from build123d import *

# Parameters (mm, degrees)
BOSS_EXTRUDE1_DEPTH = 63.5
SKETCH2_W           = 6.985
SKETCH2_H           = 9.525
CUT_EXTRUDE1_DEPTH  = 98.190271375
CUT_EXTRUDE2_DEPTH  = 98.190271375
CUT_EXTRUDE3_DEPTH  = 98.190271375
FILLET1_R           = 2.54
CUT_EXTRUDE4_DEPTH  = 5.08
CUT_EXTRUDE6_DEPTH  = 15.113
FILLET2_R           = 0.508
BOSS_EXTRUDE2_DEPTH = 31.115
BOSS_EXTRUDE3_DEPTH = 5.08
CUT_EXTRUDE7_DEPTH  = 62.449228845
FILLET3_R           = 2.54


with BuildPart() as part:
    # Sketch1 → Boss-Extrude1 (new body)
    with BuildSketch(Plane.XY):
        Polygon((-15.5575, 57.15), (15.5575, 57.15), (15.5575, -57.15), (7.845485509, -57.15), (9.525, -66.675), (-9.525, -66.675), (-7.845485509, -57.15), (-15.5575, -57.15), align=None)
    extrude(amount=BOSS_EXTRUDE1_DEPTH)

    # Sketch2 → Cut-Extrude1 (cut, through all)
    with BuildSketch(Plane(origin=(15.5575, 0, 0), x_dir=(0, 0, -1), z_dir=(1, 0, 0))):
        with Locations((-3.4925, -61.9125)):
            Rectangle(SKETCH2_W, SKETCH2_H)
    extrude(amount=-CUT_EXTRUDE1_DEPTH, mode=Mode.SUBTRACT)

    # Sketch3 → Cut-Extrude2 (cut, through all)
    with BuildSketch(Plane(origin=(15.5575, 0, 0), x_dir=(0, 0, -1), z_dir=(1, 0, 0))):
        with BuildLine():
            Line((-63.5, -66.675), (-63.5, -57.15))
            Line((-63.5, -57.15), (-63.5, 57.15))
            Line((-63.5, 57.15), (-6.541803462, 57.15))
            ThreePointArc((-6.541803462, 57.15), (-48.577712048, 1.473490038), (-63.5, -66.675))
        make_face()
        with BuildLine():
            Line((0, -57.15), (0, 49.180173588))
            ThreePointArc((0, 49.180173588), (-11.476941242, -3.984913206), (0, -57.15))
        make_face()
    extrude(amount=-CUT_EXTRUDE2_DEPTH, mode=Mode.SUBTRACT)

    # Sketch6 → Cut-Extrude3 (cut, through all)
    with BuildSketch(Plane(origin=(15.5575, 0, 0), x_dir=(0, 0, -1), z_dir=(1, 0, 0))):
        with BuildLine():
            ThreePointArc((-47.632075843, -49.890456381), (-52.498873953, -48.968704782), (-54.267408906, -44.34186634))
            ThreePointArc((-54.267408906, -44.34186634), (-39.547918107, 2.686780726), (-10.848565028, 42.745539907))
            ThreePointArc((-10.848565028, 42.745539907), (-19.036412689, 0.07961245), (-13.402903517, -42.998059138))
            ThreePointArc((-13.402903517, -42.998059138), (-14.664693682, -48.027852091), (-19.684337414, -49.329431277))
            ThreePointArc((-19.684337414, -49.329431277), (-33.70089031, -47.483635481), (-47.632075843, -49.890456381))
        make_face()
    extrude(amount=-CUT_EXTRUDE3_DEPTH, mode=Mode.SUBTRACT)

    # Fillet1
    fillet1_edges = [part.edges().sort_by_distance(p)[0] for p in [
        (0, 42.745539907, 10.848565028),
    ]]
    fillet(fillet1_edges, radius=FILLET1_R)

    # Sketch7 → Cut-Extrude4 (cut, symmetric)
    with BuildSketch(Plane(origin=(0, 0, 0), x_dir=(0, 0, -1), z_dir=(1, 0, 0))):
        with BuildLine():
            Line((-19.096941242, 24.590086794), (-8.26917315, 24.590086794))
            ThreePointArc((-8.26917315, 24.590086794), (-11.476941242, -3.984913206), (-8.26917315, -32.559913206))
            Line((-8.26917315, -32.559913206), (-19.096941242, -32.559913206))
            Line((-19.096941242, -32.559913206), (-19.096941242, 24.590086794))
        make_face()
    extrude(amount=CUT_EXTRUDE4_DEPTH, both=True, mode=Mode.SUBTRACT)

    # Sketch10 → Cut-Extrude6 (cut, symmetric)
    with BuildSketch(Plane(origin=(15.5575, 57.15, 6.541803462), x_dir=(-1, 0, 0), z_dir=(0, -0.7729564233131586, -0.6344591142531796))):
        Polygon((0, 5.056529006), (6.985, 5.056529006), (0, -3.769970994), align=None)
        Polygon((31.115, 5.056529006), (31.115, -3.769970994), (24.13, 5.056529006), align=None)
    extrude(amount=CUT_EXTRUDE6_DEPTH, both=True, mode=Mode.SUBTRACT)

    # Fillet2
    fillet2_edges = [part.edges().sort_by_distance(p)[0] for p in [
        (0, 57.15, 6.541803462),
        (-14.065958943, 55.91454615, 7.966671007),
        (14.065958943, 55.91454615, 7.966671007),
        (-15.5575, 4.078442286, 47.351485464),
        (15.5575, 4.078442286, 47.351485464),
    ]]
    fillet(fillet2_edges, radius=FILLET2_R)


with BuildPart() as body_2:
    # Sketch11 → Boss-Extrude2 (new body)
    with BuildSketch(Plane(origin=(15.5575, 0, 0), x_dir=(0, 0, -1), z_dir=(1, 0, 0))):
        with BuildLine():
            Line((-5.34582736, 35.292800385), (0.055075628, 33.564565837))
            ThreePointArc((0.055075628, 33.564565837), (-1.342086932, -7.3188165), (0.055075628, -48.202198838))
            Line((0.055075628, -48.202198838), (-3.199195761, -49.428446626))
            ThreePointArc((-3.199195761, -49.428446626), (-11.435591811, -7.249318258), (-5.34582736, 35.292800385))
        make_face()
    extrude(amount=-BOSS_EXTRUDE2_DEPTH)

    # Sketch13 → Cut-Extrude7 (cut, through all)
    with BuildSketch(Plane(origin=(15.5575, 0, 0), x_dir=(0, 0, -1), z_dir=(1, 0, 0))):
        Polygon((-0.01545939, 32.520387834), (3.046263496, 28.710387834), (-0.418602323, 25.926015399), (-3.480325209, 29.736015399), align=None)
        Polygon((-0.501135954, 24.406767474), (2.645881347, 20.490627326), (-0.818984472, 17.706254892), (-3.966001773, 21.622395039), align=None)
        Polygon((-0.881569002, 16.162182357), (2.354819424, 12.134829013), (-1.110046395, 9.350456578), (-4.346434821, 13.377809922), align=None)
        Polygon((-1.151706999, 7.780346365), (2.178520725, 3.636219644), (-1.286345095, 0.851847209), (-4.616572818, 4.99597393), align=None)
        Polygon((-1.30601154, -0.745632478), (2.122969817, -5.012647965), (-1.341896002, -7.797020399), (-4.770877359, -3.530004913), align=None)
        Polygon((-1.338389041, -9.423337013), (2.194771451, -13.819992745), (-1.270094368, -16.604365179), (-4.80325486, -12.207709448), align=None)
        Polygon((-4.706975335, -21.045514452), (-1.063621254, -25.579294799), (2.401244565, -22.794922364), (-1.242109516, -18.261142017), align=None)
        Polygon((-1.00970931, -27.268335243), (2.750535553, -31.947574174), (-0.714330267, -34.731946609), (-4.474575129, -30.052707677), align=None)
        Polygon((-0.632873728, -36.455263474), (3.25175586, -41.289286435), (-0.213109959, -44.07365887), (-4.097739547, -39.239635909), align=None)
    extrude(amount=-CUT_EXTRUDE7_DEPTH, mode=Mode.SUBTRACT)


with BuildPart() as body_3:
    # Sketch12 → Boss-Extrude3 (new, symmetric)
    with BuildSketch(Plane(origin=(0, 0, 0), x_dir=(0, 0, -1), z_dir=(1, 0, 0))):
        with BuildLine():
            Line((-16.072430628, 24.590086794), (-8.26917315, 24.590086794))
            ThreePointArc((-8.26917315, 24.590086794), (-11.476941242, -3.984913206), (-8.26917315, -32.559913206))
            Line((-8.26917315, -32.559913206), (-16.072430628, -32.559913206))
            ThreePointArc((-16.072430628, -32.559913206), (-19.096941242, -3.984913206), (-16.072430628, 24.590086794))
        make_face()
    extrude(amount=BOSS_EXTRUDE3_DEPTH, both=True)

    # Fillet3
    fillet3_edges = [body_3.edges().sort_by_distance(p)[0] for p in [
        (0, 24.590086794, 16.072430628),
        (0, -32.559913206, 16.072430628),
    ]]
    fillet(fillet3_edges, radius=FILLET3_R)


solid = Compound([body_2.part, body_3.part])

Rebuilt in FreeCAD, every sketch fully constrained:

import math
import FreeCAD as App
import Part
import Sketcher

V = App.Vector
Q = App.Units.Quantity


def edges_at(feature, points):
    """Names of the edges that pass closest to the given points."""
    edges = feature.Shape.Edges
    near = lambda p: min(range(len(edges)), key=lambda i: edges[i].distToShape(Part.Vertex(*p))[0])
    return sorted({f"Edge{near(p) + 1}" for p in points})


def add_polygon(sketch, points):
    """Adds a closed chain of lines whose ends are joined by coincident constraints."""
    first, n = sketch.GeometryCount, len(points)
    for a, b in zip(points, points[1:] + points[:1]):
        sketch.addGeometry(Part.LineSegment(App.Vector(*a, 0), App.Vector(*b, 0)), False)
    for i in range(n):
        sketch.addConstraint(Sketcher.Constraint("Coincident", first + i, 2, first + (i + 1) % n, 1))

doc = App.newDocument("Part")
body = doc.addObject("PartDesign::Body", "Body")

sketch1 = doc.addObject("Sketcher::SketchObject", "Sketch")
body.addObject(sketch1)
sketch1.AttachmentSupport = (doc.XY_Plane, [""])
sketch1.MapMode = "FlatFace"
add_polygon(sketch1, [(16, 57), (-16, 57), (-16, -57), (-8, -57), (-10, -67), (10, -67), (8, -57), (16, -57)])
sketch1.addConstraint([
    Sketcher.Constraint("Horizontal", 0),
    Sketcher.Constraint("Vertical", 1),
    Sketcher.Constraint("Horizontal", 2),
    Sketcher.Constraint("Horizontal", 4),
    Sketcher.Constraint("Horizontal", 6),
    Sketcher.Constraint("Vertical", 7),
    Sketcher.Constraint("Symmetric", 0, 2, 6, 2, -1, 1),
    Sketcher.Constraint("Symmetric", 2, 2, 5, 2, -2),
    Sketcher.Constraint("Equal", 3, 5),
    Sketcher.Constraint("DistanceY", 1, 2, 1, 1, Q("4.5 in")),
    Sketcher.Constraint("Angle", 3, Q("-100 deg")),
    Sketcher.Constraint("DistanceX", 4, 1, 4, 2, Q("0.75 in")),
    Sketcher.Constraint("DistanceX", 0, 2, 0, 1, Q("1.225 in")),
    Sketcher.Constraint("DistanceY", 3, 2, -1, 1, Q("2.625 in")),
])
pad1 = doc.addObject("PartDesign::Pad", "Pad")
body.addObject(pad1)
pad1.Profile = sketch1
pad1.Length = Q("2.5 in")

sketch2 = doc.addObject("Sketcher::SketchObject", "Sketch001")
body.addObject(sketch2)
sketch2.AttachmentSupport = (doc.YZ_Plane, [""])
sketch2.MapMode = "FlatFace"
sketch2.AttachmentOffset = App.Placement(V(0, 0, 0.6125 * 25.4), App.Rotation())
add_polygon(sketch2, [(-57, 7), (-67, 7), (-67, 0), (-57, 0)])
sketch2.addConstraint([
    Sketcher.Constraint("Horizontal", 0),
    Sketcher.Constraint("Vertical", 1),
    Sketcher.Constraint("Horizontal", 2),
    Sketcher.Constraint("Vertical", 3),
    Sketcher.Constraint("PointOnObject", 1, 2, -1),
    Sketcher.Constraint("DistanceX", 0, 2, 0, 1, Q("0.375 in")),
    Sketcher.Constraint("DistanceY", 1, 2, 1, 1, Q("0.275 in")),
    Sketcher.Constraint("DistanceX", 2, 2, -1, 1, Q("2.25 in")),
])
pocket1 = doc.addObject("PartDesign::Pocket", "Pocket")
body.addObject(pocket1)
pocket1.Profile = sketch2
pocket1.Type = "ThroughAll"

sketch3 = doc.addObject("Sketcher::SketchObject", "Sketch002")
body.addObject(sketch3)
sketch3.AttachmentSupport = (doc.YZ_Plane, [""])
sketch3.MapMode = "FlatFace"
sketch3.AttachmentOffset = App.Placement(V(0, 0, 0.6125 * 25.4), App.Rotation())
sketch3.addGeometry([
    Part.LineSegment(V(57, 64, 0), V(-67, 64, 0)),
    Part.ArcOfCircle(Part.Circle(V(-67, -100, 0), V(0, 0, 1), 163), math.radians(41), math.radians(90)),
    Part.LineSegment(V(57, 7, 0), V(57, 64, 0)),
    Part.LineSegment(V(-57, 0, 0), V(49, 0, 0)),
    Part.ArcOfCircle(Part.Circle(V(-4, -117, 0), V(0, 0, 1), 129), math.radians(66), math.radians(114)),
], False)
sketch3.addConstraint([
    Sketcher.Constraint("Tangent", 0, 2, 1, 2),
    Sketcher.Constraint("Coincident", 1, 1, 2, 1),
    Sketcher.Constraint("Coincident", 2, 2, 0, 1),
    Sketcher.Constraint("Coincident", 3, 1, 4, 2),
    Sketcher.Constraint("Coincident", 4, 1, 3, 2),
    Sketcher.Constraint("Horizontal", 0),
    Sketcher.Constraint("Vertical", 2),
    Sketcher.Constraint("Horizontal", 3),
    Sketcher.Constraint("PointOnObject", 3, 1, -1),
    Sketcher.Constraint("DistanceY", -1, 1, 0, 2, Q("2.5 in")),
    Sketcher.Constraint("DistanceX", 3, 1, 1, 1, Q("4.5 in")),
    Sketcher.Constraint("DistanceX", 0, 2, 0, 1, Q("4.875 in")),
    Sketcher.Constraint("DistanceX", -1, 1, 1, 1, Q("2.25 in")),
    Sketcher.Constraint("Radius", 1, 163.07457),
    Sketcher.Constraint("Radius", 4, 128.877833),
    Sketcher.Constraint("DistanceX", 3, 1, 3, 2, 106.330174),
])
pocket2 = doc.addObject("PartDesign::Pocket", "Pocket001")
body.addObject(pocket2)
pocket2.Profile = sketch3
pocket2.Type = "ThroughAll"

sketch4 = doc.addObject("Sketcher::SketchObject", "Sketch003")
body.addObject(sketch4)
sketch4.AttachmentSupport = (doc.YZ_Plane, [""])
sketch4.MapMode = "FlatFace"
sketch4.AttachmentOffset = App.Placement(V(0, 0, 0.6125 * 25.4), App.Rotation())
sketch4.addGeometry([
    Part.ArcOfCircle(Part.Circle(V(-45, 49, 0), V(0, 0, 1), 5), math.radians(82), math.radians(198)),
    Part.ArcOfCircle(Part.Circle(V(-94, 33, 0), V(0, 0, 1), 47), math.radians(-16), math.radians(18)),
    Part.ArcOfCircle(Part.Circle(V(-44, 18, 0), V(0, 0, 1), 5), math.radians(164), math.radians(287)),
    Part.ArcOfCircle(Part.Circle(V(-4, -117, 0), V(0, 0, 1), 136), math.radians(70), math.radians(107)),
    Part.ArcOfCircle(Part.Circle(V(-67, -100, 0), V(0, 0, 1), 155), math.radians(45), math.radians(82)),
], False)
sketch4.addConstraint([
    Sketcher.Constraint("Tangent", 0, 2, 1, 2),
    Sketcher.Constraint("Tangent", 1, 1, 2, 1),
    Sketcher.Constraint("Tangent", 2, 2, 3, 2),
    Sketcher.Constraint("Coincident", 3, 1, 4, 1),
    Sketcher.Constraint("Tangent", 4, 2, 0, 1),
    Sketcher.Constraint("Equal", 0, 2),
    Sketcher.Constraint("Radius", 0, Q("0.2 in")),
    Sketcher.Constraint("Radius", 1, Q("1.85 in")),
    Sketcher.Constraint("DistanceX", 2, 3, -1, 1, Q("1.75 in")),
    Sketcher.Constraint("DistanceX", 4, 3, -1, 1, Q("2.625 in")),
    Sketcher.Constraint("Radius", 4, 155.45457),
    Sketcher.Constraint("Radius", 3, 136.497833),
    Sketcher.Constraint("DistanceY", -1, 1, 1, 3, 32.757799),
    Sketcher.Constraint("DistanceX", 2, 2, 3, 1, 85.743599),
    Sketcher.Constraint("DistanceX", 1, 3, -1, 1, 94.464171),
    Sketcher.Constraint("DistanceY", 3, 3, -1, 1, 117.400892),
])
pocket3 = doc.addObject("PartDesign::Pocket", "Pocket002")
body.addObject(pocket3)
pocket3.Profile = sketch4
pocket3.Type = "ThroughAll"
doc.recompute()

fillet = doc.addObject("PartDesign::Fillet", "Fillet")
body.addObject(fillet)
fillet.Base = (pocket3, edges_at(pocket3, [(0, 42.746, 10.849)]))
fillet.Radius = Q("0.1 in")

sketch5 = doc.addObject("Sketcher::SketchObject", "Sketch004")
body.addObject(sketch5)
sketch5.AttachmentSupport = (doc.YZ_Plane, [""])
sketch5.MapMode = "FlatFace"
sketch5.addGeometry([
    Part.LineSegment(V(25, 8, 0), V(25, 19, 0)),
    Part.LineSegment(V(25, 19, 0), V(-33, 19, 0)),
    Part.LineSegment(V(-33, 19, 0), V(-33, 8, 0)),
    Part.ArcOfCircle(Part.Circle(V(-4, -117, 0), V(0, 0, 1), 129), math.radians(77), math.radians(103)),
], False)
sketch5.addConstraint([
    Sketcher.Constraint("Coincident", 0, 2, 1, 1),
    Sketcher.Constraint("Coincident", 1, 2, 2, 1),
    Sketcher.Constraint("Coincident", 2, 2, 3, 2),
    Sketcher.Constraint("Coincident", 3, 1, 0, 1),
    Sketcher.Constraint("Vertical", 0),
    Sketcher.Constraint("Horizontal", 1),
    Sketcher.Constraint("Vertical", 2),
    Sketcher.Constraint("Horizontal", 2, 2, 3, 1),
    Sketcher.Constraint("DistanceX", 1, 2, 1, 1, Q("2.25 in")),
    Sketcher.Constraint("Radius", 3, 128.877833),
    Sketcher.Constraint("DistanceY", 0, 1, 0, 2, 10.827768),
    Sketcher.Constraint("DistanceY", 3, 3, -1, 1, 117.400892),
    Sketcher.Constraint("DistanceX", 3, 3, -1, 1, 3.984913),
])
pocket4 = doc.addObject("PartDesign::Pocket", "Pocket003")
body.addObject(pocket4)
pocket4.Profile = sketch5
pocket4.Length = Q("0.4 in")
pocket4.Midplane = True

sketch6 = doc.addObject("Sketcher::SketchObject", "Sketch005")
body.addObject(sketch6)
sketch6.Placement = App.Placement(V(15.5575, 57.15, 6.541803), App.Rotation(V(-1, 0, 0), V(0, 0.634459114, -0.772956423), V(0, -0.772956423, -0.634459114), "ZXY"))
add_polygon(sketch6, [(7, 5), (0, 5), (0, -4)])
add_polygon(sketch6, [(31, -4), (31, 5), (24, 5)])
sketch6.addConstraint([
    Sketcher.Constraint("Horizontal", 0),
    Sketcher.Constraint("Vertical", 1),
    Sketcher.Constraint("Vertical", 3),
    Sketcher.Constraint("Horizontal", 4),
    Sketcher.Constraint("PointOnObject", 0, 2, -2),
    Sketcher.Constraint("Horizontal", 2, 2, 3, 2),
    Sketcher.Constraint("Horizontal", 1, 2, 5, 2),
    Sketcher.Constraint("Equal", 0, 4),
    Sketcher.Constraint("DistanceX", 0, 2, 0, 1, Q("0.275 in")),
    Sketcher.Constraint("DistanceX", -1, 1, 4, 2, Q("0.95 in")),
    Sketcher.Constraint("DistanceY", 1, 2, 1, 1, Q("0.3475 in")),
    Sketcher.Constraint("DistanceY", -1, 1, 0, 2, 5.056529),
])
pocket5 = doc.addObject("PartDesign::Pocket", "Pocket004")
body.addObject(pocket5)
pocket5.Profile = sketch6
pocket5.Length = Q("1.19 in")
pocket5.Midplane = True
doc.recompute()

fillet2 = doc.addObject("PartDesign::Fillet", "Fillet001")
body.addObject(fillet2)
fillet2.Base = (pocket5, edges_at(pocket5, [
    (0, 57.15, 6.542),
    (-14.066, 55.915, 7.967),
    (14.066, 55.915, 7.967),
    (-15.557, 4.078, 47.351),
    (15.557, 4.078, 47.351),
]))
fillet2.Radius = Q("0.02 in")
body2 = doc.addObject("PartDesign::Body", "Body001")

sketch7 = doc.addObject("Sketcher::SketchObject", "Sketch006")
body2.addObject(sketch7)
sketch7.AttachmentSupport = (doc.getObject("YZ_Plane001"), [""])
sketch7.MapMode = "FlatFace"
sketch7.AttachmentOffset = App.Placement(V(0, 0, 0.6125 * 25.4), App.Rotation())
sketch7.addGeometry([
    Part.LineSegment(V(33.6, -0.1, 0), V(35.3, 5.3, 0)),
    Part.ArcOfCircle(Part.Circle(V(-4, -117.4, 0), V(0, 0, 1), 128.9), math.radians(72), math.radians(111)),
    Part.LineSegment(V(-49.4, 3.2, 0), V(-48.2, -0.1, 0)),
    Part.ArcOfCircle(Part.Circle(V(-7.3, -597.5, 0), V(0, 0, 1), 598.9), math.radians(86.09), math.radians(93.91)),
], False)
sketch7.addConstraint([
    Sketcher.Constraint("Coincident", 0, 2, 1, 1),
    Sketcher.Constraint("Coincident", 1, 2, 2, 1),
    Sketcher.Constraint("Coincident", 2, 2, 3, 2),
    Sketcher.Constraint("Coincident", 3, 1, 0, 1),
    Sketcher.Constraint("Horizontal", 2, 2, 3, 1),
    Sketcher.Constraint("Radius", 1, 128.877833),
    Sketcher.Constraint("Radius", 3, 598.857664),
    Sketcher.Constraint("DistanceX", -1, 1, 0, 2, 35.2928),
    Sketcher.Constraint("DistanceX", 2, 2, -1, 1, 48.202199),
    Sketcher.Constraint("DistanceY", 3, 3, 2, 2, 597.460502),
    Sketcher.Constraint("DistanceY", 1, 3, -1, 1, 117.400892),
    Sketcher.Constraint("DistanceY", 1, 3, 0, 2, 122.746719),
    Sketcher.Constraint("DistanceY", 1, 2, 0, 2, 2.146632),
    Sketcher.Constraint("DistanceY", 2, 2, 1, 2, 3.254271),
])
pad2 = doc.addObject("PartDesign::Pad", "Pad001")
body2.addObject(pad2)
pad2.Profile = sketch7
pad2.Length = Q("1.225 in")
pad2.Reversed = True

sketch8 = doc.addObject("Sketcher::SketchObject", "Sketch007")
body2.addObject(sketch8)
sketch8.AttachmentSupport = (doc.getObject("YZ_Plane001"), [""])
sketch8.MapMode = "FlatFace"
sketch8.AttachmentOffset = App.Placement(V(0, 0, 0.6125 * 25.4), App.Rotation())
add_polygon(sketch8, [(28.710388, -3.046263), (32.520388, 0.015459), (29.736015, 3.480325), (25.926015, 0.418602)])
add_polygon(sketch8, [(20.490627, -2.645881), (24.406767, 0.501136), (21.622395, 3.966002), (17.706255, 0.818984)])
add_polygon(sketch8, [(12.134829, -2.354819), (16.162182, 0.881569), (13.37781, 4.346435), (9.350457, 1.110046)])
add_polygon(sketch8, [(3.63622, -2.178521), (7.780346, 1.151707), (4.995974, 4.616573), (0.851847, 1.286345)])
add_polygon(sketch8, [(-5.012648, -2.12297), (-0.745632, 1.306012), (-3.530005, 4.770877), (-7.79702, 1.341896)])
add_polygon(sketch8, [(-13.819993, -2.194771), (-9.423337, 1.338389), (-12.207709, 4.803255), (-16.604365, 1.270094)])
add_polygon(sketch8, [(-21.045514, 4.706975), (-25.579295, 1.063621), (-22.794922, -2.401245), (-18.261142, 1.24211)])
add_polygon(sketch8, [(-31.947574, -2.750536), (-27.268335, 1.009709), (-30.052708, 4.474575), (-34.731947, 0.71433)])
add_polygon(sketch8, [(-41.289286, -3.251756), (-36.455263, 0.632874), (-39.239636, 4.09774), (-44.073659, 0.21311)])
sketch8.addConstraint([
    Sketcher.Constraint("DistanceX", 2, 2, 1, 2, Q("0.15 in")),
    Sketcher.Constraint("DistanceX", 3, 2, 0, 2, Q("0.15 in")),
    Sketcher.Constraint("Distance", 1, Q("0.175 in")),
    Sketcher.Constraint("Distance", 3, Q("0.175 in")),
    Sketcher.Constraint("Distance", 5, Q("0.175 in")),
    Sketcher.Constraint("Distance", 7, Q("0.175 in")),
    Sketcher.Constraint("Distance", 9, Q("0.175 in")),
    Sketcher.Constraint("Distance", 11, Q("0.175 in")),
    Sketcher.Constraint("Distance", 13, Q("0.175 in")),
    Sketcher.Constraint("Distance", 15, Q("0.175 in")),
    Sketcher.Constraint("Distance", 17, Q("0.175 in")),
    Sketcher.Constraint("Distance", 19, Q("0.175 in")),
    Sketcher.Constraint("Distance", 21, Q("0.175 in")),
    Sketcher.Constraint("Distance", 23, Q("0.175 in")),
    Sketcher.Constraint("Distance", 25, Q("0.175 in")),
    Sketcher.Constraint("Distance", 27, Q("0.175 in")),
    Sketcher.Constraint("Distance", 29, Q("0.175 in")),
    Sketcher.Constraint("Distance", 31, Q("0.175 in")),
    Sketcher.Constraint("Distance", 33, Q("0.175 in")),
    Sketcher.Constraint("Distance", 35, Q("0.175 in")),
    Sketcher.Constraint("DistanceY", -1, 1, 5, 2, 3.966002),
    Sketcher.Constraint("DistanceY", 3, 2, 4, 2, 3.547399),
    Sketcher.Constraint("DistanceY", 2, 2, 5, 2, 3.547399),
    Sketcher.Constraint("DistanceY", 4, 2, 9, 2, 3.845299),
    Sketcher.Constraint("DistanceX", 10, 2, 6, 2, 8.355798),
    Sketcher.Constraint("DistanceX", 11, 2, 7, 2, 8.355798),
    Sketcher.Constraint("DistanceX", 14, 2, 12, 2, 6.928499),
    Sketcher.Constraint("DistanceY", 10, 2, 14, 2, 0.176299),
    Sketcher.Constraint("DistanceY", 11, 2, 15, 2, 0.176299),
    Sketcher.Constraint("DistanceY", 15, 2, 17, 2, 6.949398),
    Sketcher.Constraint("DistanceY", 22, 2, 18, 2, 0.071802),
    Sketcher.Constraint("DistanceY", 23, 2, 19, 2, 0.071802),
    Sketcher.Constraint("DistanceY", 25, 2, 21, 2, 7.204499),
    Sketcher.Constraint("DistanceY", 28, 2, 26, 2, 0.2324),
    Sketcher.Constraint("DistanceY", 29, 2, 27, 2, 0.2324),
    Sketcher.Constraint("DistanceY", 32, 2, 29, 2, 3.841701),
    Sketcher.Constraint("DistanceX", 33, 2, 28, 2, 11.971301),
    Sketcher.Constraint("Distance", 4, 5.02393),
    Sketcher.Constraint("Distance", 6, 5.02393),
    Sketcher.Constraint("Distance", 12, 5.316409),
    Sketcher.Constraint("Distance", 14, 5.316409),
    Sketcher.Constraint("Distance", 16, 5.47406),
    Sketcher.Constraint("Distance", 18, 5.47406),
    Sketcher.Constraint("Distance", 32, 6.201462),
    Sketcher.Constraint("Distance", 34, 6.201462),
    Sketcher.Constraint("DistanceY", -1, 1, 0, 2, 0.015459),
    Sketcher.Constraint("DistanceY", 7, 2, -1, 1, 2.645881),
    Sketcher.Constraint("DistanceY", -1, 1, 8, 2, 0.881569),
    Sketcher.Constraint("DistanceX", -1, 1, 9, 2, 13.37781),
    Sketcher.Constraint("DistanceX", -1, 1, 11, 2, 12.134829),
    Sketcher.Constraint("DistanceY", 11, 2, -1, 1, 2.354819),
    Sketcher.Constraint("DistanceX", -1, 1, 15, 2, 3.63622),
    Sketcher.Constraint("DistanceY", -1, 1, 16, 2, 1.306012),
    Sketcher.Constraint("DistanceX", 18, 2, -1, 1, 7.79702),
    Sketcher.Constraint("DistanceY", 19, 2, -1, 1, 2.12297),
    Sketcher.Constraint("DistanceY", -1, 1, 20, 2, 1.338389),
    Sketcher.Constraint("DistanceX", 21, 2, -1, 1, 12.207709),
    Sketcher.Constraint("DistanceY", -1, 1, 24, 2, 1.063621),
    Sketcher.Constraint("DistanceY", -1, 1, 26, 2, 1.24211),
    Sketcher.Constraint("DistanceY", -1, 1, 30, 2, 0.71433),
    Sketcher.Constraint("DistanceY", -1, 1, 33, 2, 4.09774),
    Sketcher.Constraint("DistanceX", 34, 2, -1, 1, 44.073659),
    Sketcher.Constraint("DistanceY", -1, 1, 34, 2, 0.21311),
    Sketcher.Constraint("DistanceY", 3, 2, 1, 2, 6.526589),
    Sketcher.Constraint("DistanceX", 4, 2, 3, 2, 4.30362),
    Sketcher.Constraint("DistanceX", 20, 2, 19, 2, 4.410689),
    Sketcher.Constraint("DistanceX", 22, 2, 20, 2, 7.181028),
    Sketcher.Constraint("DistanceX", 24, 2, 22, 2, 8.97493),
    Sketcher.Constraint("DistanceX", 26, 2, 23, 2, 4.441149),
    Sketcher.Constraint("DistanceX", 27, 2, 22, 2, 4.441149),
    Sketcher.Constraint("DistanceX", 30, 2, 29, 2, 4.679239),
    Sketcher.Constraint("DistanceX", 31, 2, 28, 2, 4.679239),
])
pocket6 = doc.addObject("PartDesign::Pocket", "Pocket005")
body2.addObject(pocket6)
pocket6.Profile = sketch8
pocket6.Type = "ThroughAll"
body3 = doc.addObject("PartDesign::Body", "Body002")

sketch9 = doc.addObject("Sketcher::SketchObject", "Sketch008")
body3.addObject(sketch9)
sketch9.AttachmentSupport = (doc.getObject("YZ_Plane002"), [""])
sketch9.MapMode = "FlatFace"
sketch9.addGeometry([
    Part.LineSegment(V(25, 8, 0), V(25, 16, 0)),
    Part.ArcOfCircle(Part.Circle(V(-4, -117, 0), V(0, 0, 1), 136), math.radians(78), math.radians(102)),
    Part.LineSegment(V(-33, 16, 0), V(-33, 8, 0)),
    Part.ArcOfCircle(Part.Circle(V(-4, -117, 0), V(0, 0, 1), 129), math.radians(77), math.radians(103)),
], False)
sketch9.addConstraint([
    Sketcher.Constraint("Coincident", 0, 2, 1, 1),
    Sketcher.Constraint("Coincident", 1, 2, 2, 1),
    Sketcher.Constraint("Coincident", 2, 2, 3, 2),
    Sketcher.Constraint("Coincident", 3, 1, 0, 1),
    Sketcher.Constraint("Vertical", 0),
    Sketcher.Constraint("Vertical", 2),
    Sketcher.Constraint("Coincident", 3, 3, 1, 3),
    Sketcher.Constraint("Horizontal", 0, 2, 1, 2),
    Sketcher.Constraint("DistanceX", 1, 2, 0, 2, Q("2.25 in")),
    Sketcher.Constraint("Radius", 1, 136.497833),
    Sketcher.Constraint("Radius", 3, 128.877833),
    Sketcher.Constraint("DistanceY", 1, 3, -1, 1, 117.400892),
    Sketcher.Constraint("DistanceX", 1, 3, -1, 1, 3.984913),
])
pad3 = doc.addObject("PartDesign::Pad", "Pad002")
body3.addObject(pad3)
pad3.Profile = sketch9
pad3.Length = Q("0.4 in")
pad3.Midplane = True
doc.recompute()

fillet3 = doc.addObject("PartDesign::Fillet", "Fillet002")
body3.addObject(fillet3)
fillet3.Base = (pad3, edges_at(pad3, [(0, 24.59, 16.072), (0, -32.56, 16.072)]))
fillet3.Radius = Q("0.1 in")
body.Visibility = False

doc.recompute()
